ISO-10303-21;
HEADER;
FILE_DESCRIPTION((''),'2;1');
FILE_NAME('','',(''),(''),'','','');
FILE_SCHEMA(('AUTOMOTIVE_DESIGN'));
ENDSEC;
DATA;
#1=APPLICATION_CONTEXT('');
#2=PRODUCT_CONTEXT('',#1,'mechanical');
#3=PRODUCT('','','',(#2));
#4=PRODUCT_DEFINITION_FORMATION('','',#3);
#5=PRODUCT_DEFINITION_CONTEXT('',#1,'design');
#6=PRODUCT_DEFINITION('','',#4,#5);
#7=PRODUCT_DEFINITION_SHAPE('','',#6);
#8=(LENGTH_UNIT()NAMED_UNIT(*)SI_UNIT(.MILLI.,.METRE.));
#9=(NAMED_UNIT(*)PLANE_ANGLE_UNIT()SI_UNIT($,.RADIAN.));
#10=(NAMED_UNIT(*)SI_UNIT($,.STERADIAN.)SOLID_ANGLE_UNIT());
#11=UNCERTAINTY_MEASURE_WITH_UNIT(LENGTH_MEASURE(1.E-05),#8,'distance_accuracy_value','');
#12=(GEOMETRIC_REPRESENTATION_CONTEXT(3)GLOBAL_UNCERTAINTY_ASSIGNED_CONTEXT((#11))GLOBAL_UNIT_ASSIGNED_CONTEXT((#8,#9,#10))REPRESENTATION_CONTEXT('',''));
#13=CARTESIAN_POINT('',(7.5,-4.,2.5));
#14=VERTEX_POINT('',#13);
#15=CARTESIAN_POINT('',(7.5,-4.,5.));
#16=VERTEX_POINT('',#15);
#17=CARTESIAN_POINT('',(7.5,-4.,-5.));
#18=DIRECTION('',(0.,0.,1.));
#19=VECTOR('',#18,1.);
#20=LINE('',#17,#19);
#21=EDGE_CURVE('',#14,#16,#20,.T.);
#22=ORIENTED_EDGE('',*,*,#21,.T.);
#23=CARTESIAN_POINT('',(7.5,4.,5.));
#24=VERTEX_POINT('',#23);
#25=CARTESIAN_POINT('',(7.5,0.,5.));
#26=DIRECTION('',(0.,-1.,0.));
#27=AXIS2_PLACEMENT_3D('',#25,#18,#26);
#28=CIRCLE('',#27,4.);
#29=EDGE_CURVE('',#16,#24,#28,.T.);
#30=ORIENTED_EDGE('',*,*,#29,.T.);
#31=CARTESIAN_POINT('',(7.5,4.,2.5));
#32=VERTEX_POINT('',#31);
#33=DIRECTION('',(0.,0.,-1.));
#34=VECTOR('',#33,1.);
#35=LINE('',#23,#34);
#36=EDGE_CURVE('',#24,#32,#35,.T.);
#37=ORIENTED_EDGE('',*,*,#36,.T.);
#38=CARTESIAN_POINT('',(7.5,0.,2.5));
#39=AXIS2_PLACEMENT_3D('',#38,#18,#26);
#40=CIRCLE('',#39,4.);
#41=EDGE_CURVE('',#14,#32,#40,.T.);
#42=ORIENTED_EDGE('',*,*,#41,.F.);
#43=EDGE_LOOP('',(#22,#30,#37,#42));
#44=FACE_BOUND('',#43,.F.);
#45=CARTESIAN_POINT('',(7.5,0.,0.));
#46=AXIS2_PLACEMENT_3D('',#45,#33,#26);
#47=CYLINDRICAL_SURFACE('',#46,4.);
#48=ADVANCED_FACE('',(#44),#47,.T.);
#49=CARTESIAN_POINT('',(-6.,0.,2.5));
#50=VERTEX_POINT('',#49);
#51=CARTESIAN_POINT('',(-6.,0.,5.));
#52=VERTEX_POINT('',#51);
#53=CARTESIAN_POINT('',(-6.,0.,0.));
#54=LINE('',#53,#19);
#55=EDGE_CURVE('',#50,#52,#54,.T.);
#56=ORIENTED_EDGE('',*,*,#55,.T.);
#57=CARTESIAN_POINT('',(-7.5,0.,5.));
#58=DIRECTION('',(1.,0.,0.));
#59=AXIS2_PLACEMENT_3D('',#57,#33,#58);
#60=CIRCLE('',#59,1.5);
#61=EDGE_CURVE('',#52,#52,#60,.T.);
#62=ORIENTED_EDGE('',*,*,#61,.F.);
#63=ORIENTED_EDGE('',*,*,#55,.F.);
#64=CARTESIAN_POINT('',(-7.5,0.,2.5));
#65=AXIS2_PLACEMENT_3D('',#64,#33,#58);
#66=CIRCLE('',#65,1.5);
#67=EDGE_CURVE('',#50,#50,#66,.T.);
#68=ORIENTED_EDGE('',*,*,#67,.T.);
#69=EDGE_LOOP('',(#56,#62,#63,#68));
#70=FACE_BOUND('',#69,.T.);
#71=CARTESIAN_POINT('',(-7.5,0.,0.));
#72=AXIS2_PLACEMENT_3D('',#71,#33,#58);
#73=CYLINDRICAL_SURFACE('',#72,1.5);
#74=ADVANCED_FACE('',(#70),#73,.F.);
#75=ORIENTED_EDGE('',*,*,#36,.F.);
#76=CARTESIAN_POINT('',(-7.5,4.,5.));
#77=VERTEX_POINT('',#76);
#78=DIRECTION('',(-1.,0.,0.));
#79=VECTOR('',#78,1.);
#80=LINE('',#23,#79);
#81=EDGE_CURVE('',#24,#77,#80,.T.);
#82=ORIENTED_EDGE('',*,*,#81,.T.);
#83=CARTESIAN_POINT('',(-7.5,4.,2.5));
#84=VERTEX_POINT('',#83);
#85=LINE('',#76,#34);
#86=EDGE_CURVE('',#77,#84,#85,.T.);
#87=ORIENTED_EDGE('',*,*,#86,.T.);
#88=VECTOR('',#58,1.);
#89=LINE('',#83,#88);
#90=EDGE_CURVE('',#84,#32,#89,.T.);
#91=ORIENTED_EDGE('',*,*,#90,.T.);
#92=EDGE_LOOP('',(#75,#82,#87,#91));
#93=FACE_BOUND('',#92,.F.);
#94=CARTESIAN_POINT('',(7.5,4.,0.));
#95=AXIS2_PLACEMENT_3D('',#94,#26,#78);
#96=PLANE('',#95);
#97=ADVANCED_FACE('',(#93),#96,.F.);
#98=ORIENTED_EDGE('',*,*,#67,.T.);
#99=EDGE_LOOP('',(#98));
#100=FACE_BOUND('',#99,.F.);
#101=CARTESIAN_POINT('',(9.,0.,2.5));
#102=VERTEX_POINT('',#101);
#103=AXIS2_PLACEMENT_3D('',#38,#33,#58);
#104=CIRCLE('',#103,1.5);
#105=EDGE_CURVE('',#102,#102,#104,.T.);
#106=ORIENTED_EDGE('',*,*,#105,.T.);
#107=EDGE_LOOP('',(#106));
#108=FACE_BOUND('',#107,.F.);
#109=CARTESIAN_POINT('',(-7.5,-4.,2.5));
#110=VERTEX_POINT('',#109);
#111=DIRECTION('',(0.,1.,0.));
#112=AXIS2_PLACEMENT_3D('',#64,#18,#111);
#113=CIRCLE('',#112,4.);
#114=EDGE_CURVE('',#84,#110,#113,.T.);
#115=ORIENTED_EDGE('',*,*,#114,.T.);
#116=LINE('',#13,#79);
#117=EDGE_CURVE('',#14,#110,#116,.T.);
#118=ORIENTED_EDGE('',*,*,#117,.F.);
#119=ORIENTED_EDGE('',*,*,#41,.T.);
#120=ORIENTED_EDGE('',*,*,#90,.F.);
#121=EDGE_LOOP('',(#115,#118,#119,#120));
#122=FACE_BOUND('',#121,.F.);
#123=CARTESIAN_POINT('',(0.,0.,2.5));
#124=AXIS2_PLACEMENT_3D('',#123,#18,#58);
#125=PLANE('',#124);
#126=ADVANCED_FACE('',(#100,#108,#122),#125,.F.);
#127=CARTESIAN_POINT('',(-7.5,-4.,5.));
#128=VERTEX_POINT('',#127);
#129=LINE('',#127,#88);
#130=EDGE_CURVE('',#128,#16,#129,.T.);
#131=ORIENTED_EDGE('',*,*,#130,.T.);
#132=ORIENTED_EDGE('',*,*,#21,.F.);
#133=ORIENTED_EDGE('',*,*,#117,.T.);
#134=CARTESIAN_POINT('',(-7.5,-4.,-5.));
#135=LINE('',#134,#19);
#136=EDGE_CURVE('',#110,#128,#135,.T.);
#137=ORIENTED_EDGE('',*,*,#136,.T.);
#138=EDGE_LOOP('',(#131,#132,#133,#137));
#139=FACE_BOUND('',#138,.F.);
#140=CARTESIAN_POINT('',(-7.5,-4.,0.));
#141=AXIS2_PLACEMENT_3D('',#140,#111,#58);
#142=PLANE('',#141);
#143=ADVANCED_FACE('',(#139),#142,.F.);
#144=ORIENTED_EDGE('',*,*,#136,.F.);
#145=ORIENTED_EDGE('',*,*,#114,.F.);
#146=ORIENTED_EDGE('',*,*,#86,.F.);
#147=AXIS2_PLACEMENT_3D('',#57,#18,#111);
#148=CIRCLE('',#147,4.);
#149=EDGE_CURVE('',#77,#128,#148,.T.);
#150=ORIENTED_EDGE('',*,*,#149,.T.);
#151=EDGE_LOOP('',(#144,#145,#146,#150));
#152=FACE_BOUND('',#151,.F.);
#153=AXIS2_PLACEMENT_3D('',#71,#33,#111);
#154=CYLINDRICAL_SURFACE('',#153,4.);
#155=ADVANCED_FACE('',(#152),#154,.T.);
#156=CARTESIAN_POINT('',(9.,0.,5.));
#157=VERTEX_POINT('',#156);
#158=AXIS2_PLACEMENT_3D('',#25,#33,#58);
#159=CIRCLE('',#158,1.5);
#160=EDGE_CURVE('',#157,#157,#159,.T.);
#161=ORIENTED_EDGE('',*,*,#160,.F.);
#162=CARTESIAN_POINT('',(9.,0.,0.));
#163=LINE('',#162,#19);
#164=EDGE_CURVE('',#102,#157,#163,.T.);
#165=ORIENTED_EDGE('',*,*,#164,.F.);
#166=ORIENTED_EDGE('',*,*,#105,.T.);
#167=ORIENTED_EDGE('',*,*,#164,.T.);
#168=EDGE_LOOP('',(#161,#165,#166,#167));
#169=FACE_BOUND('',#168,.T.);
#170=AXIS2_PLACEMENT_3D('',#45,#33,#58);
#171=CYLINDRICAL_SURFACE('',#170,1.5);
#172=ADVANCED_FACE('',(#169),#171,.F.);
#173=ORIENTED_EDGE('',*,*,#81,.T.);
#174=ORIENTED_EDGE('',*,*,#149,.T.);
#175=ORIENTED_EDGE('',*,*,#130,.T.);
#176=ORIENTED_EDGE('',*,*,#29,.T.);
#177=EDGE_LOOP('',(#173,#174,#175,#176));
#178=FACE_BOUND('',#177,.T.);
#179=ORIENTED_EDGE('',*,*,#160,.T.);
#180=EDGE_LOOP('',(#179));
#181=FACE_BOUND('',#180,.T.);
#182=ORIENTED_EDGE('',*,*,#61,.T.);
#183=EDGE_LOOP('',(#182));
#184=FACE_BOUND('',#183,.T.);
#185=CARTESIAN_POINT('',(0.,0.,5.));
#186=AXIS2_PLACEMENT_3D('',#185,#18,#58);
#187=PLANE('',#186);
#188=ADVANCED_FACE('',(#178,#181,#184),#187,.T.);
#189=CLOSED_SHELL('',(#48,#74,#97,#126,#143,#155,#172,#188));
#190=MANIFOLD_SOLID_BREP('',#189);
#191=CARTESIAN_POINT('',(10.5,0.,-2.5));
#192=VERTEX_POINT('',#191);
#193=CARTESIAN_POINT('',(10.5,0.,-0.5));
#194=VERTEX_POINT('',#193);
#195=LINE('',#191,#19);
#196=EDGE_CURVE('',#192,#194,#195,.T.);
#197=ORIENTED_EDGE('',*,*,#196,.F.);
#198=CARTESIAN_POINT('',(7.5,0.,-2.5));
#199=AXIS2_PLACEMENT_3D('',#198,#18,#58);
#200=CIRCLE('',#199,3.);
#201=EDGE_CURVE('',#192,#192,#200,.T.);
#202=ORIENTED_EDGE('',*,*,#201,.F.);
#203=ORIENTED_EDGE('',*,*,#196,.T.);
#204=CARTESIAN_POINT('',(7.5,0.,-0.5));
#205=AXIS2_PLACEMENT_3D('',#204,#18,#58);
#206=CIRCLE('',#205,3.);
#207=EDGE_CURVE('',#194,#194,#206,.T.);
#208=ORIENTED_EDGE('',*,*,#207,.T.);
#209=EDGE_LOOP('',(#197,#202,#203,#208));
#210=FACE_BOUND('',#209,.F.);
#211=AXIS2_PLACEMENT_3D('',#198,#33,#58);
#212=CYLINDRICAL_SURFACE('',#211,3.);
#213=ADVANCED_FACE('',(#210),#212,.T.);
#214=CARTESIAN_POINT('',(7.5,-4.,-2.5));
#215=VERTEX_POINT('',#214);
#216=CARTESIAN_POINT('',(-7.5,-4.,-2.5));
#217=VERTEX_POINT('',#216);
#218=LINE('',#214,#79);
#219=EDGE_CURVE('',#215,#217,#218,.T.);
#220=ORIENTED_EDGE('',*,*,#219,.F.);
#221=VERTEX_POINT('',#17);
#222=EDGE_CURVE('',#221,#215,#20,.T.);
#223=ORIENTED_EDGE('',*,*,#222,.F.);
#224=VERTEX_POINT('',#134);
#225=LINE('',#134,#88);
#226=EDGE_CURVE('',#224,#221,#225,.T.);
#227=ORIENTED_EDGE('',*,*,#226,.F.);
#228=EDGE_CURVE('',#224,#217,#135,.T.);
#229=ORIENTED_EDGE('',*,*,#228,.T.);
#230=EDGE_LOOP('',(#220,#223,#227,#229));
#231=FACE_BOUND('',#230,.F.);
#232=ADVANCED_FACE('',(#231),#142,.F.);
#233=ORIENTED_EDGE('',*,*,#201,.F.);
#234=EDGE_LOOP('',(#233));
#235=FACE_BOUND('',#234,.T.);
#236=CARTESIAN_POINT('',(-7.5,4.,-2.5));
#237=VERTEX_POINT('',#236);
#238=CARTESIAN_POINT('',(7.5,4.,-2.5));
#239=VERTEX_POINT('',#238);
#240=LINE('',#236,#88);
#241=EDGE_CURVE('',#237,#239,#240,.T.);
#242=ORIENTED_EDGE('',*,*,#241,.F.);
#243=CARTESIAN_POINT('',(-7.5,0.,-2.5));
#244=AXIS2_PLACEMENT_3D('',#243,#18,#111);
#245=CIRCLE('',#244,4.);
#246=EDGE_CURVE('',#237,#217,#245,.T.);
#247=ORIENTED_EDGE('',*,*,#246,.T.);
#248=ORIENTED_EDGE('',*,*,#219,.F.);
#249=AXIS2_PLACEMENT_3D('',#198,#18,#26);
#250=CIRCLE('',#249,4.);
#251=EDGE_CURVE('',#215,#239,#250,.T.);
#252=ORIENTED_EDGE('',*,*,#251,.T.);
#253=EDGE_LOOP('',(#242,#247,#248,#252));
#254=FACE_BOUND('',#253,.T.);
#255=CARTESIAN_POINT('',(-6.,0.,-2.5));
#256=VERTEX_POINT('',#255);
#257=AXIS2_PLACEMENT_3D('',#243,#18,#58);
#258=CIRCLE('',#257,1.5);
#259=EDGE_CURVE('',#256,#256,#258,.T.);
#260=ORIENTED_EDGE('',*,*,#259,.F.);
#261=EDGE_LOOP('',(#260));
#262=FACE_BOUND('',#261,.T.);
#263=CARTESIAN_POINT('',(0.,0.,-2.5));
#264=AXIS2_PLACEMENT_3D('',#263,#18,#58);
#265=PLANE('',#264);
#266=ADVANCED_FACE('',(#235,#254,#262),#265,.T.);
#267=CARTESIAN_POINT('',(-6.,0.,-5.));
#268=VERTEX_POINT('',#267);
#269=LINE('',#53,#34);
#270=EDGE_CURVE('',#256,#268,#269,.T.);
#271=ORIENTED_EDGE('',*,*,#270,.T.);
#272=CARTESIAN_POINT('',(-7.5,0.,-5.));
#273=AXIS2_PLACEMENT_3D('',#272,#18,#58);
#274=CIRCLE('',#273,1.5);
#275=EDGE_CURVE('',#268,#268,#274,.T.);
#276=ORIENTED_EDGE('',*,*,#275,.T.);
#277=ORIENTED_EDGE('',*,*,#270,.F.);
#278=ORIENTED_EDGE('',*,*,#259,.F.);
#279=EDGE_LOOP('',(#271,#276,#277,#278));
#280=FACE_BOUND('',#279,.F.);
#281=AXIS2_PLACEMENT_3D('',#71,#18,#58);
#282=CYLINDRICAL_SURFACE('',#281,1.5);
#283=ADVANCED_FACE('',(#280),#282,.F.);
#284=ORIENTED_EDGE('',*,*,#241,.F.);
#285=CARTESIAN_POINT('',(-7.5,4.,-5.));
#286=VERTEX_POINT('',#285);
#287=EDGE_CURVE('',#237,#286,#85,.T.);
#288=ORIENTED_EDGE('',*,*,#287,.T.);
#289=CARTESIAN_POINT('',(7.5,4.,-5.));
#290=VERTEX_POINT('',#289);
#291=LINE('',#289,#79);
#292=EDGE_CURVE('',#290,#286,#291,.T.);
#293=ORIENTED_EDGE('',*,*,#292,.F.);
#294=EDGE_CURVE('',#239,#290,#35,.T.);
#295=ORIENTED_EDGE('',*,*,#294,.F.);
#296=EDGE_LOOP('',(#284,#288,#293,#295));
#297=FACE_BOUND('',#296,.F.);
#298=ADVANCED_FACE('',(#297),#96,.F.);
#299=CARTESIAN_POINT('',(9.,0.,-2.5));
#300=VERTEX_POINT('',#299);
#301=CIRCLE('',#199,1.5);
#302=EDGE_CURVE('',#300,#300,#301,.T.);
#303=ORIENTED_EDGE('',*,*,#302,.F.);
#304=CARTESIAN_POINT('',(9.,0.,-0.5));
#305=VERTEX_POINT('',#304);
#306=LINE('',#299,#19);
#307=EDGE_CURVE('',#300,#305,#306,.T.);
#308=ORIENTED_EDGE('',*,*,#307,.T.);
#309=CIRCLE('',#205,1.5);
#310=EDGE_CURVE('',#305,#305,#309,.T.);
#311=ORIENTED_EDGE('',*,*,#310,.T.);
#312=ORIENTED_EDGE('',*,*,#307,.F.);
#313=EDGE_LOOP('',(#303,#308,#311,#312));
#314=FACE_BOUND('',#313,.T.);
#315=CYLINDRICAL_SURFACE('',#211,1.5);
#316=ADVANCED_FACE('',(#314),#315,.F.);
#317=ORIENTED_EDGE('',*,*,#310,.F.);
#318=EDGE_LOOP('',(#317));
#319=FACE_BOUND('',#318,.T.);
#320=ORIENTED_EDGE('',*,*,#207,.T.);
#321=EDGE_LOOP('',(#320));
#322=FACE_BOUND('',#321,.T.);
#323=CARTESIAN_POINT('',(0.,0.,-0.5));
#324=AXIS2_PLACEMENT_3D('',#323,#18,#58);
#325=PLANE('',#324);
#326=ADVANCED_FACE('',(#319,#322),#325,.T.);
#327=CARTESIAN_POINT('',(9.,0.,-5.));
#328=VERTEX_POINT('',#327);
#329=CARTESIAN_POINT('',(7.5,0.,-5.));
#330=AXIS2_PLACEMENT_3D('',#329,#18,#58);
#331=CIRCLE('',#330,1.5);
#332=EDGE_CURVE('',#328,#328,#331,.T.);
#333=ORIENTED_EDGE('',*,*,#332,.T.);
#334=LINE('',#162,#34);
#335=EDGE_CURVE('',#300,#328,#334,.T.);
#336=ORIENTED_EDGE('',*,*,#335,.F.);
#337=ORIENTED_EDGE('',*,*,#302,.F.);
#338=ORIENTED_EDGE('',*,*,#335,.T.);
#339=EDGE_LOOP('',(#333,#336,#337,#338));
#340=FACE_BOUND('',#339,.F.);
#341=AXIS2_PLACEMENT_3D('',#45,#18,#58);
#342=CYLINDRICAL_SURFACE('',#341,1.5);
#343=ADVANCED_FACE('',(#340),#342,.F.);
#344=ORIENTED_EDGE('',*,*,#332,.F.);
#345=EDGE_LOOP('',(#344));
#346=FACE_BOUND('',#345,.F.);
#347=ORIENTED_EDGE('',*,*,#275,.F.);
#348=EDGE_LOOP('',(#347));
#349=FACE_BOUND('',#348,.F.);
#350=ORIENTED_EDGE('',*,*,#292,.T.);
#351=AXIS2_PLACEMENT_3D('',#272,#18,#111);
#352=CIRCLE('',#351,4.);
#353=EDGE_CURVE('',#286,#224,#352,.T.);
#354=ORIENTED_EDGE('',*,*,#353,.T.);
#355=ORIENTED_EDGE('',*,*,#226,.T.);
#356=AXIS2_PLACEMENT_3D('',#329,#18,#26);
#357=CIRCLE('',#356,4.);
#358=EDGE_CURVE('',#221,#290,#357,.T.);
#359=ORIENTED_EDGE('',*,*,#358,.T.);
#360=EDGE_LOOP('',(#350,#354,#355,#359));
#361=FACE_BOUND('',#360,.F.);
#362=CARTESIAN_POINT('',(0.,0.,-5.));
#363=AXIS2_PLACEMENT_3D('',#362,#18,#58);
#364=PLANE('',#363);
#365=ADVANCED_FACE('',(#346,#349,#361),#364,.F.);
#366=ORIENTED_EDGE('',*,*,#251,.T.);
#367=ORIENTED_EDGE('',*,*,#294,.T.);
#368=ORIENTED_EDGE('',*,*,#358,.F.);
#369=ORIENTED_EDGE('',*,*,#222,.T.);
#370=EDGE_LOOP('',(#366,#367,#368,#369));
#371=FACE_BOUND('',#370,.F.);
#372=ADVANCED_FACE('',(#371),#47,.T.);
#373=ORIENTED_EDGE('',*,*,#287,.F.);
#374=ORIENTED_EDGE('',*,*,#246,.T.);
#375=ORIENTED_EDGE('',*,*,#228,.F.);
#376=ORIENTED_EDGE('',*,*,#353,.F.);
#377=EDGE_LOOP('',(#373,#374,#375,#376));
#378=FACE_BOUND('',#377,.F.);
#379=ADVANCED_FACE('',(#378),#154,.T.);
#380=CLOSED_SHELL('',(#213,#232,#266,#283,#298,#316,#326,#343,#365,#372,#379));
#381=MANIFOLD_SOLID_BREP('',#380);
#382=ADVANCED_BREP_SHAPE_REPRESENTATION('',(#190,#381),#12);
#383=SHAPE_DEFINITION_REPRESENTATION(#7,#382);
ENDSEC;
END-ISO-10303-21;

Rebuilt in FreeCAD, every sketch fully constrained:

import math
import FreeCAD as App
import Part
import Sketcher

V = App.Vector

doc = App.newDocument("Part")
body = doc.addObject("PartDesign::Body", "Body")
body.AllowCompound = True

sketch1 = body.newObject("Sketcher::SketchObject", "Sketch")
sketch1.AttachmentSupport = (doc.getObject("XY_Plane"), [""])
sketch1.MapMode = "FlatFace"
sketch1.addGeometry(Part.ArcOfCircle(Part.Circle(V(-7.5, 0, 0), V(0, 0, 1), 4), math.radians(90), math.radians(270)), False)
sketch1.addGeometry(Part.LineSegment(V(-7.5, -4, 0), V(7.5, -4, 0)), False)
sketch1.addGeometry(Part.ArcOfCircle(Part.Circle(V(7.5, 0, 0), V(0, 0, 1), 4), math.radians(-90), math.radians(90)), False)
sketch1.addGeometry(Part.LineSegment(V(7.5, 4, 0), V(-7.5, 4, 0)), False)
sketch1.addConstraint(Sketcher.Constraint("Tangent", 0, 2, 1, 1))
sketch1.addConstraint(Sketcher.Constraint("Tangent", 1, 2, 2, 1))
sketch1.addConstraint(Sketcher.Constraint("Tangent", 2, 2, 3, 1))
sketch1.addConstraint(Sketcher.Constraint("Tangent", 3, 2, 0, 1))
sketch1.addConstraint(Sketcher.Constraint("Horizontal", 1))
sketch1.addConstraint(Sketcher.Constraint("Horizontal", 3))
sketch1.addConstraint(Sketcher.Constraint("Symmetric", 0, 3, 2, 3, -1, 1))
sketch1.addConstraint(Sketcher.Constraint("Radius", 0, 4.0))
sketch1.addConstraint(Sketcher.Constraint("DistanceX", 1, 1, 1, 2, 15.0))
pad1 = body.newObject("PartDesign::Pad", "Pad")
pad1.Profile = sketch1
pad1.Length = 10
pad1.Midplane = True

sketch2 = body.newObject("Sketcher::SketchObject", "Sketch001")
sketch2.AttachmentSupport = (doc.getObject("XY_Plane"), [""])
sketch2.MapMode = "FlatFace"
sketch2.addGeometry(Part.LineSegment(V(-7.5, -4, 0), V(7.5, -4, 0)), False)
sketch2.addGeometry(Part.ArcOfCircle(Part.Circle(V(7.5, 0, 0), V(0, 0, 1), 4), math.radians(-90), math.radians(90)), False)
sketch2.addGeometry(Part.LineSegment(V(7.5, 4, 0), V(-7.5, 4, 0)), False)
sketch2.addGeometry(Part.ArcOfCircle(Part.Circle(V(-7.5, 0, 0), V(0, 0, 1), 4), math.radians(90), math.radians(270)), False)
sketch2.addConstraint(Sketcher.Constraint("Tangent", 0, 2, 1, 1))
sketch2.addConstraint(Sketcher.Constraint("Tangent", 1, 2, 2, 1))
sketch2.addConstraint(Sketcher.Constraint("Tangent", 2, 2, 3, 1))
sketch2.addConstraint(Sketcher.Constraint("Tangent", 3, 2, 0, 1))
sketch2.addConstraint(Sketcher.Constraint("Horizontal", 0))
sketch2.addConstraint(Sketcher.Constraint("Horizontal", 2))
sketch2.addConstraint(Sketcher.Constraint("Symmetric", 1, 3, 3, 3, -1, 1))
sketch2.addConstraint(Sketcher.Constraint("Radius", 1, 4.0))
sketch2.addConstraint(Sketcher.Constraint("DistanceX", 0, 1, 0, 2, 15.0))
pocket1 = body.newObject("PartDesign::Pocket", "Pocket")
pocket1.Profile = sketch2
pocket1.Length = 5
pocket1.Midplane = True

sketch3 = body.newObject("Sketcher::SketchObject", "Sketch002")
sketch3.AttachmentSupport = (doc.getObject("XY_Plane"), [""])
sketch3.MapMode = "FlatFace"
sketch3.addGeometry(Part.Circle(V(-7.5, 0, 0), V(0, 0, 1), 1.5), False)
sketch3.addGeometry(Part.Circle(V(7.5, 0, 0), V(0, 0, 1), 1.5), False)
sketch3.addConstraint(Sketcher.Constraint("Equal", 0, 1))
sketch3.addConstraint(Sketcher.Constraint("Symmetric", 0, 3, 1, 3, -1, 1))
sketch3.addConstraint(Sketcher.Constraint("PointOnObject", 0, 3, -1))
sketch3.addConstraint(Sketcher.Constraint("Diameter", 0, 3.0))
sketch3.addConstraint(Sketcher.Constraint("DistanceX", 0, 3, 1, 3, 15.0))
pocket2 = body.newObject("PartDesign::Pocket", "Pocket001")
pocket2.Profile = sketch3
pocket2.Type = "ThroughAll"
pocket2.Midplane = True

sketch4 = body.newObject("Sketcher::SketchObject", "Sketch003")
sketch4.AttachmentSupport = (doc.getObject("XY_Plane"), [""])
sketch4.MapMode = "FlatFace"
sketch4.AttachmentOffset = App.Placement(V(0, 0, -2.5), App.Rotation())
sketch4.addGeometry(Part.Circle(V(7.5, 0, 0), V(0, 0, 1), 3), False)
sketch4.addGeometry(Part.Circle(V(7.5, 0, 0), V(0, 0, 1), 1.5), False)
sketch4.addConstraint(Sketcher.Constraint("Coincident", 1, 3, 0, 3))
sketch4.addConstraint(Sketcher.Constraint("PointOnObject", 0, 3, -1))
sketch4.addConstraint(Sketcher.Constraint("Diameter", 1, 3.0))
sketch4.addConstraint(Sketcher.Constraint("Diameter", 0, 6.0))
sketch4.addConstraint(Sketcher.Constraint("DistanceX", -1, 1, 0, 3, 7.5))
pad2 = body.newObject("PartDesign::Pad", "Pad001")
pad2.Profile = sketch4
pad2.Length = 2

doc.recompute()
